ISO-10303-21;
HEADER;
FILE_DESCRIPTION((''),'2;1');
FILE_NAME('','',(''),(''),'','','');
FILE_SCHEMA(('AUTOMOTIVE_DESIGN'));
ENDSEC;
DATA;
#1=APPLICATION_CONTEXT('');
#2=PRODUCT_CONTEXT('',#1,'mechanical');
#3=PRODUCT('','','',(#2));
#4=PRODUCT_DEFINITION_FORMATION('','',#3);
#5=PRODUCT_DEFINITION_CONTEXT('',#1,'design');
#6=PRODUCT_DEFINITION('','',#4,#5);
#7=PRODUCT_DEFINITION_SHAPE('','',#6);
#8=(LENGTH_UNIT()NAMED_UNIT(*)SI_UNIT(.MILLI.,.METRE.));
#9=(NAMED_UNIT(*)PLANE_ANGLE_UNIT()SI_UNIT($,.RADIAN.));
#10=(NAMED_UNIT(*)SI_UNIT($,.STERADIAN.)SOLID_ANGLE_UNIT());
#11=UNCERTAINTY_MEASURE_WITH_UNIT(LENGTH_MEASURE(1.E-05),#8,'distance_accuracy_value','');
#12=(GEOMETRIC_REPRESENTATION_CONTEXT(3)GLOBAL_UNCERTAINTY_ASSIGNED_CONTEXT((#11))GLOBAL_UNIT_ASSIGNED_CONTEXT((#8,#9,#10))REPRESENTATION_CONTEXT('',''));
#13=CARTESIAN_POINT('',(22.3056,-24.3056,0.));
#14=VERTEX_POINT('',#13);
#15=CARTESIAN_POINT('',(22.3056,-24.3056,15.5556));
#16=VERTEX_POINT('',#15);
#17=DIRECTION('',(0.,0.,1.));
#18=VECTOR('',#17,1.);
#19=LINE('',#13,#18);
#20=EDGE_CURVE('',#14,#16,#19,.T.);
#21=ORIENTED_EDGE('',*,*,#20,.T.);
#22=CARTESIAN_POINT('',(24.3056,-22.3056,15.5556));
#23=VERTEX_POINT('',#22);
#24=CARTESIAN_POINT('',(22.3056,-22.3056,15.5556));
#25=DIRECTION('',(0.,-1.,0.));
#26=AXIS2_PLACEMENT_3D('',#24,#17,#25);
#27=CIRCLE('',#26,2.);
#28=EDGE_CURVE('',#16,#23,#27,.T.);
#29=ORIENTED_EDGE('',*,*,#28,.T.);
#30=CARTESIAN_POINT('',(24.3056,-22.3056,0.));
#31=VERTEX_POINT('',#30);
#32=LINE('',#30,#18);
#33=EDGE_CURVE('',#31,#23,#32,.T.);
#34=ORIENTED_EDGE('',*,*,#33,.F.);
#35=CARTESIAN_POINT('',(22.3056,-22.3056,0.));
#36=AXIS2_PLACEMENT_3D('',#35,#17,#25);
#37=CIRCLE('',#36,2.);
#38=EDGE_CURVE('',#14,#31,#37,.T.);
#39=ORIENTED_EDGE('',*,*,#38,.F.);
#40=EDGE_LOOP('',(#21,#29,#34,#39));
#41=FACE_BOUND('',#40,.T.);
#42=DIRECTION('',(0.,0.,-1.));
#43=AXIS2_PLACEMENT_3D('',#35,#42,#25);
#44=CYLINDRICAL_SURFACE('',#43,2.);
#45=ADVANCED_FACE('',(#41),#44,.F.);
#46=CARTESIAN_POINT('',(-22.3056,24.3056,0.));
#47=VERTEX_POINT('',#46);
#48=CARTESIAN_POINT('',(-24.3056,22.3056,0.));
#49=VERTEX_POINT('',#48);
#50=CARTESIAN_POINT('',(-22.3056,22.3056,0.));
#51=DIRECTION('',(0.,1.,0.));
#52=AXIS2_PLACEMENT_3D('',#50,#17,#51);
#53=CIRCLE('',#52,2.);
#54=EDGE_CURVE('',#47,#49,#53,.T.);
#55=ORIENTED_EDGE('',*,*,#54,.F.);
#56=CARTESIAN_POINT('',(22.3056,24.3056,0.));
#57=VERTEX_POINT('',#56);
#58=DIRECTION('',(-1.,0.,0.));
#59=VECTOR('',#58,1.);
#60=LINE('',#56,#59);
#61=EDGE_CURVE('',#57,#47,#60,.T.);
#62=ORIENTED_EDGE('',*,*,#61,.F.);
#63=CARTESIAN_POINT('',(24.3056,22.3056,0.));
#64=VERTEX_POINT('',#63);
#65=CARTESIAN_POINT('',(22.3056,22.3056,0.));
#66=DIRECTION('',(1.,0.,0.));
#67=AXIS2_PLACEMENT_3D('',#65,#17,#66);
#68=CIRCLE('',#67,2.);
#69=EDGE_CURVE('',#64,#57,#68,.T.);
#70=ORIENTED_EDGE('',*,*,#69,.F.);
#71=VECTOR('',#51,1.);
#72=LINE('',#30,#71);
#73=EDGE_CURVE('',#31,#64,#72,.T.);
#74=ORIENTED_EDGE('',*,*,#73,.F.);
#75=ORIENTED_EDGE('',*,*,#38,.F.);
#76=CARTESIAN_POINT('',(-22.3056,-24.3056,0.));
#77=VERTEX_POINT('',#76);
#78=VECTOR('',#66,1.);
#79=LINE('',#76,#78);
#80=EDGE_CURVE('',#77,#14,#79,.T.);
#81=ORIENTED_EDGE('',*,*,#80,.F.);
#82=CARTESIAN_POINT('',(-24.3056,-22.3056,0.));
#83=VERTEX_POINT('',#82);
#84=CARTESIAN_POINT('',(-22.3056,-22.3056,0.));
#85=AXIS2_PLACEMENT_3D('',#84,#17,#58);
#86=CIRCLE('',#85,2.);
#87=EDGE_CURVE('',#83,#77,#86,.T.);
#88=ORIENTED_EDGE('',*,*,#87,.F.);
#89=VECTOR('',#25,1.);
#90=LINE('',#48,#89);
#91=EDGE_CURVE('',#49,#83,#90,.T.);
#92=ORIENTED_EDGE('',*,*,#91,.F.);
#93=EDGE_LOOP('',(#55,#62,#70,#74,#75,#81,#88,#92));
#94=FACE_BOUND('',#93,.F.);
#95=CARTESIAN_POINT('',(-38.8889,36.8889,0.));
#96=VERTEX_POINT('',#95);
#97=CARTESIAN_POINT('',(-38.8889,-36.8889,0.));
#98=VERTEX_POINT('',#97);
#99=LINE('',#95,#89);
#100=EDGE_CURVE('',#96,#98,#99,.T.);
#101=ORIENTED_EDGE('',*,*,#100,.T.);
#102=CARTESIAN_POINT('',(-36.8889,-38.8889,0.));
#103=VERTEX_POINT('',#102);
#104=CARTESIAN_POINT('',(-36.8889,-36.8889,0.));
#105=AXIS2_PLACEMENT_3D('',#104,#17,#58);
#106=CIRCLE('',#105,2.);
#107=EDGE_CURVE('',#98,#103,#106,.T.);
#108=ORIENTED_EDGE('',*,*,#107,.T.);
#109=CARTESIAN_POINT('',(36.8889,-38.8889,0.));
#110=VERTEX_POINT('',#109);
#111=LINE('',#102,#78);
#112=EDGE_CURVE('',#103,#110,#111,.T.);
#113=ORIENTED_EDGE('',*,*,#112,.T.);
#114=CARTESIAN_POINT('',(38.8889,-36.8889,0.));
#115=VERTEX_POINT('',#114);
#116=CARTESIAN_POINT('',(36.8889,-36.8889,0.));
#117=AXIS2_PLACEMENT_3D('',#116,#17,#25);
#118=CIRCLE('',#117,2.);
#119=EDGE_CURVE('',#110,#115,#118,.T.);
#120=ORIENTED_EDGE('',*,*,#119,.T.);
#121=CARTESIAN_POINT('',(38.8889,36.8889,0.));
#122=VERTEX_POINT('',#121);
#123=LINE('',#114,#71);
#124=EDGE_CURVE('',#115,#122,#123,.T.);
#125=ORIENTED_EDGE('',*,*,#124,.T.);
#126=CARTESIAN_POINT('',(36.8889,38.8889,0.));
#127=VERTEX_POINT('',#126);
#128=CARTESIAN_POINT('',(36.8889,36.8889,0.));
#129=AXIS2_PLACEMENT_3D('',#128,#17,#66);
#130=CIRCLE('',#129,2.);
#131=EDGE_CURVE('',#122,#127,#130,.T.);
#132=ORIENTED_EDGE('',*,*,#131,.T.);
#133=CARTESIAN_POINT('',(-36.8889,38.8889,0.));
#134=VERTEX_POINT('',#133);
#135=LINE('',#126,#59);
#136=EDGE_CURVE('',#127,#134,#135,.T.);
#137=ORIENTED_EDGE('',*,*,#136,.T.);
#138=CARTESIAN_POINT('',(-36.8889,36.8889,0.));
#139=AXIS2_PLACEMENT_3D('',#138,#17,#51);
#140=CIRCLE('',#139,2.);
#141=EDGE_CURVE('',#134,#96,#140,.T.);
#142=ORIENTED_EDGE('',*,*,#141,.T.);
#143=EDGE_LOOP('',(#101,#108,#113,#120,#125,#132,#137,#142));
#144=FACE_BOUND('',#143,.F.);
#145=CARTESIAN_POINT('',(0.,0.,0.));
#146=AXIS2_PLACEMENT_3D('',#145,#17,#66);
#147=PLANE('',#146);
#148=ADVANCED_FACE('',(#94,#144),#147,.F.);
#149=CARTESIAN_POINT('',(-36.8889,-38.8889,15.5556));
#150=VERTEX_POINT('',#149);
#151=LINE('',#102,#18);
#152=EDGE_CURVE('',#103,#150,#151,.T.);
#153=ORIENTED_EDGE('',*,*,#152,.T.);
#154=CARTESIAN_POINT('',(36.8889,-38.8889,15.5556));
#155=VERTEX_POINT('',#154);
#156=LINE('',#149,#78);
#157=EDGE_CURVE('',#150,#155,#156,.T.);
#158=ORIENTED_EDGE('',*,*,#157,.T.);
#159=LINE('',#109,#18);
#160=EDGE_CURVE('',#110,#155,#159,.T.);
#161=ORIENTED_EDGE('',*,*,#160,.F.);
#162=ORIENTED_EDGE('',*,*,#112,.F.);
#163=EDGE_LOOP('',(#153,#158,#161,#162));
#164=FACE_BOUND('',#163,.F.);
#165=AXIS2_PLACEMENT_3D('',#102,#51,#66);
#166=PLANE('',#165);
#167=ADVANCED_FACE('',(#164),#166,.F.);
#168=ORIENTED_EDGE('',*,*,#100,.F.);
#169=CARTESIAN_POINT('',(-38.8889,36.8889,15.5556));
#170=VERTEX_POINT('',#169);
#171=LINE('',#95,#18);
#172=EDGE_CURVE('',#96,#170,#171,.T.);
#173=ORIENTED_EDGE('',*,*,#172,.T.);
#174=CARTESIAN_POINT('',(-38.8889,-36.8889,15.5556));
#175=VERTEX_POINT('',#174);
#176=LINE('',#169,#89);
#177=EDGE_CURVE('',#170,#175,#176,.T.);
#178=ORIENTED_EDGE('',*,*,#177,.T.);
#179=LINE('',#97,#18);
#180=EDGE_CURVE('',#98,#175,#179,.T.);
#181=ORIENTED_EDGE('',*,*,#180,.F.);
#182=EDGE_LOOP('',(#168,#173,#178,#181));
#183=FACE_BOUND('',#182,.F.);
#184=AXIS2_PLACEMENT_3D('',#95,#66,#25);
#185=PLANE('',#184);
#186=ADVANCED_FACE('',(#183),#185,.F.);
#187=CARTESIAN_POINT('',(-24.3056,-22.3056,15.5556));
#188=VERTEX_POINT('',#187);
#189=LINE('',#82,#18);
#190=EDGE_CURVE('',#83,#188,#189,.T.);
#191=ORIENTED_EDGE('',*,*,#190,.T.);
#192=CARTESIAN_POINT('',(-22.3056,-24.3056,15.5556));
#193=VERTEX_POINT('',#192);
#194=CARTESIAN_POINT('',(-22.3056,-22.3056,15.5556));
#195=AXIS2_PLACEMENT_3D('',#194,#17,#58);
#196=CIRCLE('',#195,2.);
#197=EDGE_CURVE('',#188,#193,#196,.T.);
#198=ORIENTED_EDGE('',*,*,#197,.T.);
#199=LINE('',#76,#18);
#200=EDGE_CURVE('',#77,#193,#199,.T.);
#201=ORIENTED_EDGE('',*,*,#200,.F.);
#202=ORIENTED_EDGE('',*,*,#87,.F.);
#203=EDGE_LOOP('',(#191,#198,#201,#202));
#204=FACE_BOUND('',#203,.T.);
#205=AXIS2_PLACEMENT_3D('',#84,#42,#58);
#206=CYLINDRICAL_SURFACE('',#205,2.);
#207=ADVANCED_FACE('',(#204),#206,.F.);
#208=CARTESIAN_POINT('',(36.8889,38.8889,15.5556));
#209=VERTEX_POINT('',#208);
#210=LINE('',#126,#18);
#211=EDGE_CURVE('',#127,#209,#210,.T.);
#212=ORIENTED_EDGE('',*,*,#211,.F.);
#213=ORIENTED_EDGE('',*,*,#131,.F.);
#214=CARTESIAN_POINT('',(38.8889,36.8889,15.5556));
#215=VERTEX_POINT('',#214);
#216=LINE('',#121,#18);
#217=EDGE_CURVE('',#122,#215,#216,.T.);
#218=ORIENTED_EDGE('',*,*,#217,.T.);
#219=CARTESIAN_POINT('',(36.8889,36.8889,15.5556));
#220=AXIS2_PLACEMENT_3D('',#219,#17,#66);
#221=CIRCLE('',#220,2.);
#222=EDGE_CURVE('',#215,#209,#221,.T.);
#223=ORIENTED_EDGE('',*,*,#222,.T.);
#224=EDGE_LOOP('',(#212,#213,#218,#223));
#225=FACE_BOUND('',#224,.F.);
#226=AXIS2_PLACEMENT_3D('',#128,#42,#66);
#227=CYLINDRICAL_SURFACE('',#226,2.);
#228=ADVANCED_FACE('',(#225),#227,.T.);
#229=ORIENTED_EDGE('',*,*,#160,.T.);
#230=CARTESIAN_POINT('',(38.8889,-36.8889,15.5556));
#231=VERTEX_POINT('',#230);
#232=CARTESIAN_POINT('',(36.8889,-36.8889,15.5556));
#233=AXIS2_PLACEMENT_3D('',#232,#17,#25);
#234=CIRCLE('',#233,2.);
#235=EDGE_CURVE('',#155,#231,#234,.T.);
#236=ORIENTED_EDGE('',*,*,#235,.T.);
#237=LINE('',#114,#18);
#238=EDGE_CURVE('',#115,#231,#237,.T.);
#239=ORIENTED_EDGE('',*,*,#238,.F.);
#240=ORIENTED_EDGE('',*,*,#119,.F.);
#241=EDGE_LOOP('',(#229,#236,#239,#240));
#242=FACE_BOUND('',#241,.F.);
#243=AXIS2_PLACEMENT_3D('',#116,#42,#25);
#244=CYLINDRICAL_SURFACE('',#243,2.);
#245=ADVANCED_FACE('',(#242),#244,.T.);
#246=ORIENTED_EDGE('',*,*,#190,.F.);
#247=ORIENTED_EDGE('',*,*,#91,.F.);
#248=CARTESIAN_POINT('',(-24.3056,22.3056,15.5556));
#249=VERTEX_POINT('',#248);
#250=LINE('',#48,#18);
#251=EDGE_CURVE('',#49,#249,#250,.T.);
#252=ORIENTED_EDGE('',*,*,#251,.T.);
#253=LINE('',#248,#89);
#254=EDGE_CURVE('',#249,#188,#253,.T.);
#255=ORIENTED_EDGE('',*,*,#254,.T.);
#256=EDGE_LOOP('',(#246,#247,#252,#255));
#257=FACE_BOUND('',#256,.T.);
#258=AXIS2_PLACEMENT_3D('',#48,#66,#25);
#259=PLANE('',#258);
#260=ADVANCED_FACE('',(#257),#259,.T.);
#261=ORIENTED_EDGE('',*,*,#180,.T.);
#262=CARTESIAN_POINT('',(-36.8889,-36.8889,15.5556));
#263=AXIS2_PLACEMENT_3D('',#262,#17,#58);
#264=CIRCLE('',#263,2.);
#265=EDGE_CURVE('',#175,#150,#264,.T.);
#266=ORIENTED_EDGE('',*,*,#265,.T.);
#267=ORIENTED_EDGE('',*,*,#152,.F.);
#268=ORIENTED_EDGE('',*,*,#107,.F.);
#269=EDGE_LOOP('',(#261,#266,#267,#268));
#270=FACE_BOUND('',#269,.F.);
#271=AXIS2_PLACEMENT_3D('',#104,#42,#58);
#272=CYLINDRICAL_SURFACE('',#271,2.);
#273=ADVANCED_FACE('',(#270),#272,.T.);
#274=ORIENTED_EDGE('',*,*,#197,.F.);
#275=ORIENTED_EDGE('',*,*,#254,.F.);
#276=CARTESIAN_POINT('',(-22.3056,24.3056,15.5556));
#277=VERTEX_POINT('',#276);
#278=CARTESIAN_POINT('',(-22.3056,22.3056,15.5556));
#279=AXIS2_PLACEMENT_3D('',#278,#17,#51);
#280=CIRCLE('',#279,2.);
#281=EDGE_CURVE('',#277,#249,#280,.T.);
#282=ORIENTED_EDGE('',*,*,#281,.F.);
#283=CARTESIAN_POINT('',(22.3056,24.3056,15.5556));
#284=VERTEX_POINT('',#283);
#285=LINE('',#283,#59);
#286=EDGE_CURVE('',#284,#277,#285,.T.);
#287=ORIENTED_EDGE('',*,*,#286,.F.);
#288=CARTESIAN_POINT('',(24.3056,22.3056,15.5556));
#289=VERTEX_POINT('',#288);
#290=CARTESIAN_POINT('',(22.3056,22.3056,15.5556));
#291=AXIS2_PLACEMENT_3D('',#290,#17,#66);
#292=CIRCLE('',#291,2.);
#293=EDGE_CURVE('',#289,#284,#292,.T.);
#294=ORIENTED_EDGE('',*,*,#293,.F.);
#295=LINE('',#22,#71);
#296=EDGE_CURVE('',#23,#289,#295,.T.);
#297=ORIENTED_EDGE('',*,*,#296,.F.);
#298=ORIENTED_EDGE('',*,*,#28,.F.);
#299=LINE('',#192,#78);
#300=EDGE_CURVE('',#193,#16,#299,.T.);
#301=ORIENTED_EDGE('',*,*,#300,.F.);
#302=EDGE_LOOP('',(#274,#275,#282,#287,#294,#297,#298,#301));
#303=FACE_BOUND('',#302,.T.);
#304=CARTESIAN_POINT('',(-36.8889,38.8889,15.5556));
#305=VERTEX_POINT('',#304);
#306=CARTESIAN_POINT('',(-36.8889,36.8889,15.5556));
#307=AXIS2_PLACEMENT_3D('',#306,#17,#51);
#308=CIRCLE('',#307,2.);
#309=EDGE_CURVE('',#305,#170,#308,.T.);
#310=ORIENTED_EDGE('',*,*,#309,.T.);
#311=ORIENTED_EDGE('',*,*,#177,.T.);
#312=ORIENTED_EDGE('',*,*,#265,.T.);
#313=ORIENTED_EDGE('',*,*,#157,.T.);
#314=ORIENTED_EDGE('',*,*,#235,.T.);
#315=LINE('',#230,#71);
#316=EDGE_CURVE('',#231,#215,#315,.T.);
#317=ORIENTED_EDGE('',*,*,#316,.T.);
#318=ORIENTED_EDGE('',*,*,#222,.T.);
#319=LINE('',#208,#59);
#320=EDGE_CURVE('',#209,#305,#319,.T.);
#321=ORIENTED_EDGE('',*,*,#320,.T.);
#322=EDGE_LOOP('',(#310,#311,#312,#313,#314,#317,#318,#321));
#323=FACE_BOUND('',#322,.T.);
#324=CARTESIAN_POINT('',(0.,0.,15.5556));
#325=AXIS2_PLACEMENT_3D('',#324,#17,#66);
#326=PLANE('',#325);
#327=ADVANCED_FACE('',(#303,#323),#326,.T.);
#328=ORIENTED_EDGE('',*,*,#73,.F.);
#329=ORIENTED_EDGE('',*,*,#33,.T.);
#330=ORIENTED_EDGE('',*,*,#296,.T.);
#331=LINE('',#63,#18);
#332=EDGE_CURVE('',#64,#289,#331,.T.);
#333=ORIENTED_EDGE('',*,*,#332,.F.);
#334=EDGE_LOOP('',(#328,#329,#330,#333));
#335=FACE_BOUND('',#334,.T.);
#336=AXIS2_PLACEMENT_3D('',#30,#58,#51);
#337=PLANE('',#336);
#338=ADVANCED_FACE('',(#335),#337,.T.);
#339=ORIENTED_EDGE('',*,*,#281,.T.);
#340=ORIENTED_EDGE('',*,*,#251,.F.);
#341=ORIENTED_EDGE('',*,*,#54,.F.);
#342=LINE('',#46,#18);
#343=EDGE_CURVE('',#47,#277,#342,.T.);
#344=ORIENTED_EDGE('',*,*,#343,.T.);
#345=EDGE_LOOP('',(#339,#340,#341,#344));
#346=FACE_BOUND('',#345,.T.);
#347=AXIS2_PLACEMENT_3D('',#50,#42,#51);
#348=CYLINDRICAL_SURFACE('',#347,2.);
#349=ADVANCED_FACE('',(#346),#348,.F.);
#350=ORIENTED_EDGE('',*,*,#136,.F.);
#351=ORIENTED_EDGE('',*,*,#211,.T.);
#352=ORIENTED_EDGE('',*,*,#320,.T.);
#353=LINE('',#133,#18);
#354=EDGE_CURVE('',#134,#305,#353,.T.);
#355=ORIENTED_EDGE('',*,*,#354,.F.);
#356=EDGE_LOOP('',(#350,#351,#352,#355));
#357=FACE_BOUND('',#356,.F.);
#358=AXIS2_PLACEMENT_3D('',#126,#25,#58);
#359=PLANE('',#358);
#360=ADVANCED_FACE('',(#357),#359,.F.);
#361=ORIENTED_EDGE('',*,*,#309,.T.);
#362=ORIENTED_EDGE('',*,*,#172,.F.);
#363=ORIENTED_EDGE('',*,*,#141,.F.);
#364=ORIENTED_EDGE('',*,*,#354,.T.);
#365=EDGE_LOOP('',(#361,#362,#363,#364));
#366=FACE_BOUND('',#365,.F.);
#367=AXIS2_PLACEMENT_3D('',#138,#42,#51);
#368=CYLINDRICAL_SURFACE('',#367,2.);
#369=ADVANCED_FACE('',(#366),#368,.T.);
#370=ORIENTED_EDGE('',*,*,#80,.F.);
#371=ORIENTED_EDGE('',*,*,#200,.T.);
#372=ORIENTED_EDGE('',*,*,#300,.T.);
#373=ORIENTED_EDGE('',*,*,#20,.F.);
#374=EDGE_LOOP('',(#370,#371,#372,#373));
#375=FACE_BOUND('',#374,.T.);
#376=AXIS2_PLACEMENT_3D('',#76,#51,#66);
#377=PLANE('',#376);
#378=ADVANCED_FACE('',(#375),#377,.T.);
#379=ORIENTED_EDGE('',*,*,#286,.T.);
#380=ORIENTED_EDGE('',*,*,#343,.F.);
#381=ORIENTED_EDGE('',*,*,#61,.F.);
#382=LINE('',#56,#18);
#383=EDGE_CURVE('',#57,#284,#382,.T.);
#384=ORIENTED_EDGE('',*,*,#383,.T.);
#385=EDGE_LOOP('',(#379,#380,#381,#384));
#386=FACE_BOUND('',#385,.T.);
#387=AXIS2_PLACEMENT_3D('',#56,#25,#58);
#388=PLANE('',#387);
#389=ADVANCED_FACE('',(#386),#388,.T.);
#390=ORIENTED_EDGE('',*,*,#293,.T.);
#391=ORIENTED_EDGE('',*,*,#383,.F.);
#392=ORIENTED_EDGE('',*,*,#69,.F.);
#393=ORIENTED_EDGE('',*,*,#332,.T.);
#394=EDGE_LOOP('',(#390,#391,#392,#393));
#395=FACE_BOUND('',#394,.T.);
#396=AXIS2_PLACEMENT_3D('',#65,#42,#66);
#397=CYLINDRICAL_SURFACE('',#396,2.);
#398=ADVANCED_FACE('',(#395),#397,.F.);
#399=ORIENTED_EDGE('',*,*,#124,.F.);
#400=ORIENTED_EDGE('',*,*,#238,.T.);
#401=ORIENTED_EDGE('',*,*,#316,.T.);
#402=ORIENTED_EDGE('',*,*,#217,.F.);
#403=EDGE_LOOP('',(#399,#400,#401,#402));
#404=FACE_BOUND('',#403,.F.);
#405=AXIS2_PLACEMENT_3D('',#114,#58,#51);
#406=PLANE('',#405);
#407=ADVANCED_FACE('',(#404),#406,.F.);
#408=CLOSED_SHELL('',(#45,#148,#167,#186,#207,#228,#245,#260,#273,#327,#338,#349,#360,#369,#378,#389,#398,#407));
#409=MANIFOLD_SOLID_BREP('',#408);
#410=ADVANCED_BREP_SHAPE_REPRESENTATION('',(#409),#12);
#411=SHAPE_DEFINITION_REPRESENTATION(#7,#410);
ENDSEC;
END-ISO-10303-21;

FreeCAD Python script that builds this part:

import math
import FreeCAD as App
import Part
import Sketcher
from FreeCAD import Vector
Q = App.Units.Quantity

doc = App.newDocument("Part")
params = doc.addObject("Spreadsheet::Sheet", "Params")
for row, (alias, value) in enumerate([
    ("sketch1_radius", "2 mm"),
    ("pad1_length", "15.5556 mm"),
], start=1):
    params.set(f"A{row}", alias)
    params.set(f"B{row}", "=" + value)
    params.setAlias(f"B{row}", alias)

body = doc.addObject("PartDesign::Body", "Body")

# Sketch on XY plane
sketch1 = body.newObject("Sketcher::SketchObject", "Sketch")
sketch1.AttachmentSupport = (doc.getObject("XY_Plane"), [""])
sketch1.MapMode = "FlatFace"
sketch1.addGeometry([
    Part.ArcOfCircle(Part.Circle(Vector(-36.8889, -36.8889, 0), Vector(0, 0, 1), 2), math.radians(180), math.radians(270)),  # 0
    Part.LineSegment(Vector(-36.8889, -38.8889, 0), Vector(36.8889, -38.8889, 0)),  # 1
    Part.ArcOfCircle(Part.Circle(Vector(36.8889, -36.8889, 0), Vector(0, 0, 1), 2), math.radians(-90), math.radians(0)),  # 2
    Part.LineSegment(Vector(38.8889, -36.8889, 0), Vector(38.8889, 36.8889, 0)),  # 3
    Part.ArcOfCircle(Part.Circle(Vector(36.8889, 36.8889, 0), Vector(0, 0, 1), 2), math.radians(0), math.radians(90)),  # 4
    Part.LineSegment(Vector(36.8889, 38.8889, 0), Vector(-36.8889, 38.8889, 0)),  # 5
    Part.ArcOfCircle(Part.Circle(Vector(-36.8889, 36.8889, 0), Vector(0, 0, 1), 2), math.radians(90), math.radians(180)),  # 6
    Part.LineSegment(Vector(-38.8889, 36.8889, 0), Vector(-38.8889, -36.8889, 0)),  # 7
    Part.LineSegment(Vector(22.3056, -24.3056, 0), Vector(-22.3056, -24.3056, 0)),  # 8
    Part.ArcOfCircle(Part.Circle(Vector(-22.3056, -22.3056, 0), Vector(0, 0, 1), 2), math.radians(180), math.radians(270)),  # 9
    Part.LineSegment(Vector(-24.3056, -22.3056, 0), Vector(-24.3056, 22.3056, 0)),  # 10
    Part.ArcOfCircle(Part.Circle(Vector(-22.3056, 22.3056, 0), Vector(0, 0, 1), 2), math.radians(90), math.radians(180)),  # 11
    Part.LineSegment(Vector(-22.3056, 24.3056, 0), Vector(22.3056, 24.3056, 0)),  # 12
    Part.ArcOfCircle(Part.Circle(Vector(22.3056, 22.3056, 0), Vector(0, 0, 1), 2), math.radians(0), math.radians(90)),  # 13
    Part.LineSegment(Vector(24.3056, 22.3056, 0), Vector(24.3056, -22.3056, 0)),  # 14
    Part.ArcOfCircle(Part.Circle(Vector(22.3056, -22.3056, 0), Vector(0, 0, 1), 2), math.radians(-90), math.radians(0)),  # 15
], False)
sketch1.addConstraint([
    Sketcher.Constraint("Tangent", 0, 2, 1, 1),
    Sketcher.Constraint("Tangent", 1, 2, 2, 1),
    Sketcher.Constraint("Tangent", 2, 2, 3, 1),
    Sketcher.Constraint("Tangent", 3, 2, 4, 1),
    Sketcher.Constraint("Tangent", 4, 2, 5, 1),
    Sketcher.Constraint("Tangent", 5, 2, 6, 1),
    Sketcher.Constraint("Tangent", 6, 2, 7, 1),
    Sketcher.Constraint("Tangent", 7, 2, 0, 1),
    Sketcher.Constraint("Tangent", 8, 2, 9, 2),
    Sketcher.Constraint("Tangent", 9, 1, 10, 1),
    Sketcher.Constraint("Tangent", 10, 2, 11, 2),
    Sketcher.Constraint("Tangent", 11, 1, 12, 1),
    Sketcher.Constraint("Tangent", 12, 2, 13, 2),
    Sketcher.Constraint("Tangent", 13, 1, 14, 1),
    Sketcher.Constraint("Tangent", 14, 2, 15, 2),
    Sketcher.Constraint("Tangent", 15, 1, 8, 1),
    Sketcher.Constraint("Horizontal", 1),
    Sketcher.Constraint("Vertical", 3),
    Sketcher.Constraint("Horizontal", 5),
    Sketcher.Constraint("Vertical", 7),
    Sketcher.Constraint("Horizontal", 8),
    Sketcher.Constraint("Vertical", 10),
    Sketcher.Constraint("Horizontal", 12),
    Sketcher.Constraint("Vertical", 14),
    Sketcher.Constraint("Equal", 0, 2),
    Sketcher.Constraint("Equal", 2, 4),
    Sketcher.Constraint("Equal", 4, 6),
    Sketcher.Constraint("Equal", 6, 9),
    Sketcher.Constraint("Equal", 9, 11),
    Sketcher.Constraint("Equal", 11, 13),
    Sketcher.Constraint("Equal", 13, 15),
    Sketcher.Constraint("Symmetric", 0, 3, 4, 3, -1, 1),
    Sketcher.Constraint("Symmetric", 9, 3, 13, 3, -1, 1),
    Sketcher.Constraint("Equal", 5, 3),
    Sketcher.Constraint("Equal", 12, 10),
    Sketcher.Constraint("Radius", 0, Q("2 mm")),
    Sketcher.Constraint("DistanceY", 0, 2, -1, 1, Q("38.889 mm")),
    Sketcher.Constraint("DistanceY", 8, 2, -1, 1, Q("24.3056 mm")),
])
sketch1.setExpression("Constraints[35]", "Params.sketch1_radius")
pad1 = body.newObject("PartDesign::Pad", "Pad")
pad1.Profile = sketch1
pad1.setExpression("Length", "Params.pad1_length")

doc.recompute()
